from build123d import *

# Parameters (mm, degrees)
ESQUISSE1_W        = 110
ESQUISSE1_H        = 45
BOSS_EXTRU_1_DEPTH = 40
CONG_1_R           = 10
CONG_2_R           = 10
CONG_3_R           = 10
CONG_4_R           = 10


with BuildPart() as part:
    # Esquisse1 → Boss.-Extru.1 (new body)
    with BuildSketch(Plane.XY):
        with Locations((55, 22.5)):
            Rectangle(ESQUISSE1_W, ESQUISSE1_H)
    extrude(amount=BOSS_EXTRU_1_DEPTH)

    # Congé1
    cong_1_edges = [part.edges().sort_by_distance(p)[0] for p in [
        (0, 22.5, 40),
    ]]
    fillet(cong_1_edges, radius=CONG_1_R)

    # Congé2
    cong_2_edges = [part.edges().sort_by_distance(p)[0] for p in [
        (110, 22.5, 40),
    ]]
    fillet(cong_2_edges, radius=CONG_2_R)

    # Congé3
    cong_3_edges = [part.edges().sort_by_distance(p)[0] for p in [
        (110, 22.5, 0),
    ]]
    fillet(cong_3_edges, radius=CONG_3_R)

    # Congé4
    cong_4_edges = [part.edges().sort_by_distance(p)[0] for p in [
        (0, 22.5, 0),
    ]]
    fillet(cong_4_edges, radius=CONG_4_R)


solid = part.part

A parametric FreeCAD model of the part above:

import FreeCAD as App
import Part
import Sketcher


def edges_at(feature, points):
    """Names of the edges that pass closest to the given points."""
    edges = feature.Shape.Edges
    near = lambda p: min(range(len(edges)), key=lambda i: edges[i].distToShape(Part.Vertex(*p))[0])
    return sorted({f"Edge{near(p) + 1}" for p in points})

doc = App.newDocument("Part")
body = doc.addObject("PartDesign::Body", "Body")

# Sketch on XY plane
sketch1 = body.newObject("Sketcher::SketchObject", "Sketch")
sketch1.AttachmentSupport = (doc.getObject("XY_Plane"), [""])
sketch1.MapMode = "FlatFace"
sketch1.addGeometry([
    Part.LineSegment(App.Vector(0, 45, 0), App.Vector(0, 0, 0)),
    Part.LineSegment(App.Vector(0, 0, 0), App.Vector(110, 0, 0)),
    Part.LineSegment(App.Vector(110, 0, 0), App.Vector(110, 45, 0)),
    Part.LineSegment(App.Vector(110, 45, 0), App.Vector(0, 45, 0)),
], False)
sketch1.addConstraint([
    Sketcher.Constraint("Coincident", 0, 2, 1, 1),
    Sketcher.Constraint("Coincident", 1, 2, 2, 1),
    Sketcher.Constraint("Coincident", 2, 2, 3, 1),
    Sketcher.Constraint("Coincident", 3, 2, 0, 1),
    Sketcher.Constraint("Vertical", 0),
    Sketcher.Constraint("Horizontal", 1),
    Sketcher.Constraint("Vertical", 2),
    Sketcher.Constraint("Horizontal", 3),
    Sketcher.Constraint("Coincident", 0, 2, -1, 1),
    Sketcher.Constraint("DistanceX", 1, 1, 1, 2, 110.0),
    Sketcher.Constraint("DistanceY", 0, 2, 0, 1, 45.0),
])
pad1 = body.newObject("PartDesign::Pad", "Pad")
pad1.Profile = sketch1
pad1.Length = 40
doc.recompute()

fillet = body.newObject("PartDesign::Fillet", "Fillet")
fillet.Base = (pad1, edges_at(pad1, [(0, 22.5, 40)]))
fillet.Radius = 10
doc.recompute()

fillet2 = body.newObject("PartDesign::Fillet", "Fillet001")
fillet2.Base = (fillet, edges_at(fillet, [(110, 22.5, 40)]))
fillet2.Radius = 10
doc.recompute()

fillet3 = body.newObject("PartDesign::Fillet", "Fillet002")
fillet3.Base = (fillet2, edges_at(fillet2, [(110, 22.5, 0)]))
fillet3.Radius = 10
doc.recompute()

fillet4 = body.newObject("PartDesign::Fillet", "Fillet003")
fillet4.Base = (fillet3, edges_at(fillet3, [(0, 22.5, 0)]))
fillet4.Radius = 10

doc.recompute()
